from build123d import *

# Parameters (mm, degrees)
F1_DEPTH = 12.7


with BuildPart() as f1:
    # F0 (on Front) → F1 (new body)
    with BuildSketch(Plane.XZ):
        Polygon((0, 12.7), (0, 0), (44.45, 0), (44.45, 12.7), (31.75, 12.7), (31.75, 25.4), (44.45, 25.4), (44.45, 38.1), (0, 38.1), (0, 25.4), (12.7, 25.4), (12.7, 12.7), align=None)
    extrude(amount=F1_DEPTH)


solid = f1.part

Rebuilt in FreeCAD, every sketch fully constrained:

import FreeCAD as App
import Part
import Sketcher

V = App.Vector
Q = App.Units.Quantity

doc = App.newDocument("Part")
body = doc.addObject("PartDesign::Body", "Body")

sketch1 = doc.addObject("Sketcher::SketchObject", "Sketch")
body.addObject(sketch1)
sketch1.AttachmentSupport = (doc.XZ_Plane, [""])
sketch1.MapMode = "FlatFace"
sketch1.addGeometry([
    Part.LineSegment(V(0, 13, 0), V(0, 0, 0)),
    Part.LineSegment(V(0, 0, 0), V(44, 0, 0)),
    Part.LineSegment(V(44, 0, 0), V(44, 13, 0)),
    Part.LineSegment(V(44, 13, 0), V(32, 13, 0)),
    Part.LineSegment(V(32, 13, 0), V(32, 25, 0)),
    Part.LineSegment(V(32, 25, 0), V(44, 25, 0)),
    Part.LineSegment(V(44, 25, 0), V(44, 38, 0)),
    Part.LineSegment(V(44, 38, 0), V(0, 38, 0)),
    Part.LineSegment(V(0, 38, 0), V(0, 25, 0)),
    Part.LineSegment(V(0, 25, 0), V(13, 25, 0)),
    Part.LineSegment(V(13, 25, 0), V(13, 13, 0)),
    Part.LineSegment(V(13, 13, 0), V(0, 13, 0)),
], False)
sketch1.addConstraint([
    Sketcher.Constraint("Coincident", 0, 2, 1, 1),
    Sketcher.Constraint("Coincident", 1, 2, 2, 1),
    Sketcher.Constraint("Coincident", 2, 2, 3, 1),
    Sketcher.Constraint("Coincident", 3, 2, 4, 1),
    Sketcher.Constraint("Coincident", 4, 2, 5, 1),
    Sketcher.Constraint("Coincident", 5, 2, 6, 1),
    Sketcher.Constraint("Coincident", 6, 2, 7, 1),
    Sketcher.Constraint("Coincident", 7, 2, 8, 1),
    Sketcher.Constraint("Coincident", 8, 2, 9, 1),
    Sketcher.Constraint("Coincident", 9, 2, 10, 1),
    Sketcher.Constraint("Coincident", 10, 2, 11, 1),
    Sketcher.Constraint("Coincident", 11, 2, 0, 1),
    Sketcher.Constraint("Vertical", 0),
    Sketcher.Constraint("Horizontal", 1),
    Sketcher.Constraint("Vertical", 2),
    Sketcher.Constraint("Horizontal", 3),
    Sketcher.Constraint("Vertical", 4),
    Sketcher.Constraint("Horizontal", 5),
    Sketcher.Constraint("Vertical", 6),
    Sketcher.Constraint("Horizontal", 7),
    Sketcher.Constraint("Vertical", 8),
    Sketcher.Constraint("Horizontal", 9),
    Sketcher.Constraint("Vertical", 10),
    Sketcher.Constraint("Horizontal", 11),
    Sketcher.Constraint("Coincident", 0, 2, -1, 1),
    Sketcher.Constraint("PointOnObject", 7, 2, -2),
    Sketcher.Constraint("Horizontal", 5, 2, 8, 2),
    Sketcher.Constraint("Horizontal", 3, 2, 10, 2),
    Sketcher.Constraint("Vertical", 2, 2, 5, 2),
    Sketcher.Constraint("Equal", 5, 9),
    Sketcher.Constraint("Equal", 11, 0),
    Sketcher.Constraint("Equal", 2, 4),
    Sketcher.Constraint("Equal", 4, 6),
    Sketcher.Constraint("DistanceX", 3, 2, 3, 1, Q("0.5 in")),
    Sketcher.Constraint("DistanceX", 1, 1, 1, 2, Q("1.75 in")),
])
pad1 = doc.addObject("PartDesign::Pad", "Pad")
body.addObject(pad1)
pad1.Profile = sketch1
pad1.Length = Q("0.5 in")

doc.recompute()
